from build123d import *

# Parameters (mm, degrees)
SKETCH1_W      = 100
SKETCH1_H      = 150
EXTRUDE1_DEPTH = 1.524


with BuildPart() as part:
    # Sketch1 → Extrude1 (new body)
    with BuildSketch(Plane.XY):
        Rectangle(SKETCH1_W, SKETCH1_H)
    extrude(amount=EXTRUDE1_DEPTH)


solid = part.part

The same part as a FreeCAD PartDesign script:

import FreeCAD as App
import Part
import Sketcher

V = App.Vector
Q = App.Units.Quantity

doc = App.newDocument("Part")
body = doc.addObject("PartDesign::Body", "Body")

# Sketch on XY plane
sketch1 = body.newObject("Sketcher::SketchObject", "Sketch")
sketch1.AttachmentSupport = (doc.getObject("XY_Plane"), [""])
sketch1.MapMode = "FlatFace"
sketch1.addGeometry([
    Part.LineSegment(V(-50, 75, 0), V(-50, -75, 0)),
    Part.LineSegment(V(-50, -75, 0), V(50, -75, 0)),
    Part.LineSegment(V(50, -75, 0), V(50, 75, 0)),
    Part.LineSegment(V(50, 75, 0), V(-50, 75, 0)),
], False)
sketch1.addConstraint([
    Sketcher.Constraint("Coincident", 0, 2, 1, 1),
    Sketcher.Constraint("Coincident", 1, 2, 2, 1),
    Sketcher.Constraint("Coincident", 2, 2, 3, 1),
    Sketcher.Constraint("Coincident", 3, 2, 0, 1),
    Sketcher.Constraint("Vertical", 0),
    Sketcher.Constraint("Horizontal", 1),
    Sketcher.Constraint("Vertical", 2),
    Sketcher.Constraint("Horizontal", 3),
    Sketcher.Constraint("Symmetric", 0, 2, 2, 2, -1, 1),
    Sketcher.Constraint("DistanceX", 1, 1, 1, 2, Q("100 mm")),
    Sketcher.Constraint("DistanceY", 0, 2, 0, 1, Q("150 mm")),
])
pad1 = body.newObject("PartDesign::Pad", "Pad")
pad1.Profile = sketch1
pad1.Length = 1.524

doc.recompute()
